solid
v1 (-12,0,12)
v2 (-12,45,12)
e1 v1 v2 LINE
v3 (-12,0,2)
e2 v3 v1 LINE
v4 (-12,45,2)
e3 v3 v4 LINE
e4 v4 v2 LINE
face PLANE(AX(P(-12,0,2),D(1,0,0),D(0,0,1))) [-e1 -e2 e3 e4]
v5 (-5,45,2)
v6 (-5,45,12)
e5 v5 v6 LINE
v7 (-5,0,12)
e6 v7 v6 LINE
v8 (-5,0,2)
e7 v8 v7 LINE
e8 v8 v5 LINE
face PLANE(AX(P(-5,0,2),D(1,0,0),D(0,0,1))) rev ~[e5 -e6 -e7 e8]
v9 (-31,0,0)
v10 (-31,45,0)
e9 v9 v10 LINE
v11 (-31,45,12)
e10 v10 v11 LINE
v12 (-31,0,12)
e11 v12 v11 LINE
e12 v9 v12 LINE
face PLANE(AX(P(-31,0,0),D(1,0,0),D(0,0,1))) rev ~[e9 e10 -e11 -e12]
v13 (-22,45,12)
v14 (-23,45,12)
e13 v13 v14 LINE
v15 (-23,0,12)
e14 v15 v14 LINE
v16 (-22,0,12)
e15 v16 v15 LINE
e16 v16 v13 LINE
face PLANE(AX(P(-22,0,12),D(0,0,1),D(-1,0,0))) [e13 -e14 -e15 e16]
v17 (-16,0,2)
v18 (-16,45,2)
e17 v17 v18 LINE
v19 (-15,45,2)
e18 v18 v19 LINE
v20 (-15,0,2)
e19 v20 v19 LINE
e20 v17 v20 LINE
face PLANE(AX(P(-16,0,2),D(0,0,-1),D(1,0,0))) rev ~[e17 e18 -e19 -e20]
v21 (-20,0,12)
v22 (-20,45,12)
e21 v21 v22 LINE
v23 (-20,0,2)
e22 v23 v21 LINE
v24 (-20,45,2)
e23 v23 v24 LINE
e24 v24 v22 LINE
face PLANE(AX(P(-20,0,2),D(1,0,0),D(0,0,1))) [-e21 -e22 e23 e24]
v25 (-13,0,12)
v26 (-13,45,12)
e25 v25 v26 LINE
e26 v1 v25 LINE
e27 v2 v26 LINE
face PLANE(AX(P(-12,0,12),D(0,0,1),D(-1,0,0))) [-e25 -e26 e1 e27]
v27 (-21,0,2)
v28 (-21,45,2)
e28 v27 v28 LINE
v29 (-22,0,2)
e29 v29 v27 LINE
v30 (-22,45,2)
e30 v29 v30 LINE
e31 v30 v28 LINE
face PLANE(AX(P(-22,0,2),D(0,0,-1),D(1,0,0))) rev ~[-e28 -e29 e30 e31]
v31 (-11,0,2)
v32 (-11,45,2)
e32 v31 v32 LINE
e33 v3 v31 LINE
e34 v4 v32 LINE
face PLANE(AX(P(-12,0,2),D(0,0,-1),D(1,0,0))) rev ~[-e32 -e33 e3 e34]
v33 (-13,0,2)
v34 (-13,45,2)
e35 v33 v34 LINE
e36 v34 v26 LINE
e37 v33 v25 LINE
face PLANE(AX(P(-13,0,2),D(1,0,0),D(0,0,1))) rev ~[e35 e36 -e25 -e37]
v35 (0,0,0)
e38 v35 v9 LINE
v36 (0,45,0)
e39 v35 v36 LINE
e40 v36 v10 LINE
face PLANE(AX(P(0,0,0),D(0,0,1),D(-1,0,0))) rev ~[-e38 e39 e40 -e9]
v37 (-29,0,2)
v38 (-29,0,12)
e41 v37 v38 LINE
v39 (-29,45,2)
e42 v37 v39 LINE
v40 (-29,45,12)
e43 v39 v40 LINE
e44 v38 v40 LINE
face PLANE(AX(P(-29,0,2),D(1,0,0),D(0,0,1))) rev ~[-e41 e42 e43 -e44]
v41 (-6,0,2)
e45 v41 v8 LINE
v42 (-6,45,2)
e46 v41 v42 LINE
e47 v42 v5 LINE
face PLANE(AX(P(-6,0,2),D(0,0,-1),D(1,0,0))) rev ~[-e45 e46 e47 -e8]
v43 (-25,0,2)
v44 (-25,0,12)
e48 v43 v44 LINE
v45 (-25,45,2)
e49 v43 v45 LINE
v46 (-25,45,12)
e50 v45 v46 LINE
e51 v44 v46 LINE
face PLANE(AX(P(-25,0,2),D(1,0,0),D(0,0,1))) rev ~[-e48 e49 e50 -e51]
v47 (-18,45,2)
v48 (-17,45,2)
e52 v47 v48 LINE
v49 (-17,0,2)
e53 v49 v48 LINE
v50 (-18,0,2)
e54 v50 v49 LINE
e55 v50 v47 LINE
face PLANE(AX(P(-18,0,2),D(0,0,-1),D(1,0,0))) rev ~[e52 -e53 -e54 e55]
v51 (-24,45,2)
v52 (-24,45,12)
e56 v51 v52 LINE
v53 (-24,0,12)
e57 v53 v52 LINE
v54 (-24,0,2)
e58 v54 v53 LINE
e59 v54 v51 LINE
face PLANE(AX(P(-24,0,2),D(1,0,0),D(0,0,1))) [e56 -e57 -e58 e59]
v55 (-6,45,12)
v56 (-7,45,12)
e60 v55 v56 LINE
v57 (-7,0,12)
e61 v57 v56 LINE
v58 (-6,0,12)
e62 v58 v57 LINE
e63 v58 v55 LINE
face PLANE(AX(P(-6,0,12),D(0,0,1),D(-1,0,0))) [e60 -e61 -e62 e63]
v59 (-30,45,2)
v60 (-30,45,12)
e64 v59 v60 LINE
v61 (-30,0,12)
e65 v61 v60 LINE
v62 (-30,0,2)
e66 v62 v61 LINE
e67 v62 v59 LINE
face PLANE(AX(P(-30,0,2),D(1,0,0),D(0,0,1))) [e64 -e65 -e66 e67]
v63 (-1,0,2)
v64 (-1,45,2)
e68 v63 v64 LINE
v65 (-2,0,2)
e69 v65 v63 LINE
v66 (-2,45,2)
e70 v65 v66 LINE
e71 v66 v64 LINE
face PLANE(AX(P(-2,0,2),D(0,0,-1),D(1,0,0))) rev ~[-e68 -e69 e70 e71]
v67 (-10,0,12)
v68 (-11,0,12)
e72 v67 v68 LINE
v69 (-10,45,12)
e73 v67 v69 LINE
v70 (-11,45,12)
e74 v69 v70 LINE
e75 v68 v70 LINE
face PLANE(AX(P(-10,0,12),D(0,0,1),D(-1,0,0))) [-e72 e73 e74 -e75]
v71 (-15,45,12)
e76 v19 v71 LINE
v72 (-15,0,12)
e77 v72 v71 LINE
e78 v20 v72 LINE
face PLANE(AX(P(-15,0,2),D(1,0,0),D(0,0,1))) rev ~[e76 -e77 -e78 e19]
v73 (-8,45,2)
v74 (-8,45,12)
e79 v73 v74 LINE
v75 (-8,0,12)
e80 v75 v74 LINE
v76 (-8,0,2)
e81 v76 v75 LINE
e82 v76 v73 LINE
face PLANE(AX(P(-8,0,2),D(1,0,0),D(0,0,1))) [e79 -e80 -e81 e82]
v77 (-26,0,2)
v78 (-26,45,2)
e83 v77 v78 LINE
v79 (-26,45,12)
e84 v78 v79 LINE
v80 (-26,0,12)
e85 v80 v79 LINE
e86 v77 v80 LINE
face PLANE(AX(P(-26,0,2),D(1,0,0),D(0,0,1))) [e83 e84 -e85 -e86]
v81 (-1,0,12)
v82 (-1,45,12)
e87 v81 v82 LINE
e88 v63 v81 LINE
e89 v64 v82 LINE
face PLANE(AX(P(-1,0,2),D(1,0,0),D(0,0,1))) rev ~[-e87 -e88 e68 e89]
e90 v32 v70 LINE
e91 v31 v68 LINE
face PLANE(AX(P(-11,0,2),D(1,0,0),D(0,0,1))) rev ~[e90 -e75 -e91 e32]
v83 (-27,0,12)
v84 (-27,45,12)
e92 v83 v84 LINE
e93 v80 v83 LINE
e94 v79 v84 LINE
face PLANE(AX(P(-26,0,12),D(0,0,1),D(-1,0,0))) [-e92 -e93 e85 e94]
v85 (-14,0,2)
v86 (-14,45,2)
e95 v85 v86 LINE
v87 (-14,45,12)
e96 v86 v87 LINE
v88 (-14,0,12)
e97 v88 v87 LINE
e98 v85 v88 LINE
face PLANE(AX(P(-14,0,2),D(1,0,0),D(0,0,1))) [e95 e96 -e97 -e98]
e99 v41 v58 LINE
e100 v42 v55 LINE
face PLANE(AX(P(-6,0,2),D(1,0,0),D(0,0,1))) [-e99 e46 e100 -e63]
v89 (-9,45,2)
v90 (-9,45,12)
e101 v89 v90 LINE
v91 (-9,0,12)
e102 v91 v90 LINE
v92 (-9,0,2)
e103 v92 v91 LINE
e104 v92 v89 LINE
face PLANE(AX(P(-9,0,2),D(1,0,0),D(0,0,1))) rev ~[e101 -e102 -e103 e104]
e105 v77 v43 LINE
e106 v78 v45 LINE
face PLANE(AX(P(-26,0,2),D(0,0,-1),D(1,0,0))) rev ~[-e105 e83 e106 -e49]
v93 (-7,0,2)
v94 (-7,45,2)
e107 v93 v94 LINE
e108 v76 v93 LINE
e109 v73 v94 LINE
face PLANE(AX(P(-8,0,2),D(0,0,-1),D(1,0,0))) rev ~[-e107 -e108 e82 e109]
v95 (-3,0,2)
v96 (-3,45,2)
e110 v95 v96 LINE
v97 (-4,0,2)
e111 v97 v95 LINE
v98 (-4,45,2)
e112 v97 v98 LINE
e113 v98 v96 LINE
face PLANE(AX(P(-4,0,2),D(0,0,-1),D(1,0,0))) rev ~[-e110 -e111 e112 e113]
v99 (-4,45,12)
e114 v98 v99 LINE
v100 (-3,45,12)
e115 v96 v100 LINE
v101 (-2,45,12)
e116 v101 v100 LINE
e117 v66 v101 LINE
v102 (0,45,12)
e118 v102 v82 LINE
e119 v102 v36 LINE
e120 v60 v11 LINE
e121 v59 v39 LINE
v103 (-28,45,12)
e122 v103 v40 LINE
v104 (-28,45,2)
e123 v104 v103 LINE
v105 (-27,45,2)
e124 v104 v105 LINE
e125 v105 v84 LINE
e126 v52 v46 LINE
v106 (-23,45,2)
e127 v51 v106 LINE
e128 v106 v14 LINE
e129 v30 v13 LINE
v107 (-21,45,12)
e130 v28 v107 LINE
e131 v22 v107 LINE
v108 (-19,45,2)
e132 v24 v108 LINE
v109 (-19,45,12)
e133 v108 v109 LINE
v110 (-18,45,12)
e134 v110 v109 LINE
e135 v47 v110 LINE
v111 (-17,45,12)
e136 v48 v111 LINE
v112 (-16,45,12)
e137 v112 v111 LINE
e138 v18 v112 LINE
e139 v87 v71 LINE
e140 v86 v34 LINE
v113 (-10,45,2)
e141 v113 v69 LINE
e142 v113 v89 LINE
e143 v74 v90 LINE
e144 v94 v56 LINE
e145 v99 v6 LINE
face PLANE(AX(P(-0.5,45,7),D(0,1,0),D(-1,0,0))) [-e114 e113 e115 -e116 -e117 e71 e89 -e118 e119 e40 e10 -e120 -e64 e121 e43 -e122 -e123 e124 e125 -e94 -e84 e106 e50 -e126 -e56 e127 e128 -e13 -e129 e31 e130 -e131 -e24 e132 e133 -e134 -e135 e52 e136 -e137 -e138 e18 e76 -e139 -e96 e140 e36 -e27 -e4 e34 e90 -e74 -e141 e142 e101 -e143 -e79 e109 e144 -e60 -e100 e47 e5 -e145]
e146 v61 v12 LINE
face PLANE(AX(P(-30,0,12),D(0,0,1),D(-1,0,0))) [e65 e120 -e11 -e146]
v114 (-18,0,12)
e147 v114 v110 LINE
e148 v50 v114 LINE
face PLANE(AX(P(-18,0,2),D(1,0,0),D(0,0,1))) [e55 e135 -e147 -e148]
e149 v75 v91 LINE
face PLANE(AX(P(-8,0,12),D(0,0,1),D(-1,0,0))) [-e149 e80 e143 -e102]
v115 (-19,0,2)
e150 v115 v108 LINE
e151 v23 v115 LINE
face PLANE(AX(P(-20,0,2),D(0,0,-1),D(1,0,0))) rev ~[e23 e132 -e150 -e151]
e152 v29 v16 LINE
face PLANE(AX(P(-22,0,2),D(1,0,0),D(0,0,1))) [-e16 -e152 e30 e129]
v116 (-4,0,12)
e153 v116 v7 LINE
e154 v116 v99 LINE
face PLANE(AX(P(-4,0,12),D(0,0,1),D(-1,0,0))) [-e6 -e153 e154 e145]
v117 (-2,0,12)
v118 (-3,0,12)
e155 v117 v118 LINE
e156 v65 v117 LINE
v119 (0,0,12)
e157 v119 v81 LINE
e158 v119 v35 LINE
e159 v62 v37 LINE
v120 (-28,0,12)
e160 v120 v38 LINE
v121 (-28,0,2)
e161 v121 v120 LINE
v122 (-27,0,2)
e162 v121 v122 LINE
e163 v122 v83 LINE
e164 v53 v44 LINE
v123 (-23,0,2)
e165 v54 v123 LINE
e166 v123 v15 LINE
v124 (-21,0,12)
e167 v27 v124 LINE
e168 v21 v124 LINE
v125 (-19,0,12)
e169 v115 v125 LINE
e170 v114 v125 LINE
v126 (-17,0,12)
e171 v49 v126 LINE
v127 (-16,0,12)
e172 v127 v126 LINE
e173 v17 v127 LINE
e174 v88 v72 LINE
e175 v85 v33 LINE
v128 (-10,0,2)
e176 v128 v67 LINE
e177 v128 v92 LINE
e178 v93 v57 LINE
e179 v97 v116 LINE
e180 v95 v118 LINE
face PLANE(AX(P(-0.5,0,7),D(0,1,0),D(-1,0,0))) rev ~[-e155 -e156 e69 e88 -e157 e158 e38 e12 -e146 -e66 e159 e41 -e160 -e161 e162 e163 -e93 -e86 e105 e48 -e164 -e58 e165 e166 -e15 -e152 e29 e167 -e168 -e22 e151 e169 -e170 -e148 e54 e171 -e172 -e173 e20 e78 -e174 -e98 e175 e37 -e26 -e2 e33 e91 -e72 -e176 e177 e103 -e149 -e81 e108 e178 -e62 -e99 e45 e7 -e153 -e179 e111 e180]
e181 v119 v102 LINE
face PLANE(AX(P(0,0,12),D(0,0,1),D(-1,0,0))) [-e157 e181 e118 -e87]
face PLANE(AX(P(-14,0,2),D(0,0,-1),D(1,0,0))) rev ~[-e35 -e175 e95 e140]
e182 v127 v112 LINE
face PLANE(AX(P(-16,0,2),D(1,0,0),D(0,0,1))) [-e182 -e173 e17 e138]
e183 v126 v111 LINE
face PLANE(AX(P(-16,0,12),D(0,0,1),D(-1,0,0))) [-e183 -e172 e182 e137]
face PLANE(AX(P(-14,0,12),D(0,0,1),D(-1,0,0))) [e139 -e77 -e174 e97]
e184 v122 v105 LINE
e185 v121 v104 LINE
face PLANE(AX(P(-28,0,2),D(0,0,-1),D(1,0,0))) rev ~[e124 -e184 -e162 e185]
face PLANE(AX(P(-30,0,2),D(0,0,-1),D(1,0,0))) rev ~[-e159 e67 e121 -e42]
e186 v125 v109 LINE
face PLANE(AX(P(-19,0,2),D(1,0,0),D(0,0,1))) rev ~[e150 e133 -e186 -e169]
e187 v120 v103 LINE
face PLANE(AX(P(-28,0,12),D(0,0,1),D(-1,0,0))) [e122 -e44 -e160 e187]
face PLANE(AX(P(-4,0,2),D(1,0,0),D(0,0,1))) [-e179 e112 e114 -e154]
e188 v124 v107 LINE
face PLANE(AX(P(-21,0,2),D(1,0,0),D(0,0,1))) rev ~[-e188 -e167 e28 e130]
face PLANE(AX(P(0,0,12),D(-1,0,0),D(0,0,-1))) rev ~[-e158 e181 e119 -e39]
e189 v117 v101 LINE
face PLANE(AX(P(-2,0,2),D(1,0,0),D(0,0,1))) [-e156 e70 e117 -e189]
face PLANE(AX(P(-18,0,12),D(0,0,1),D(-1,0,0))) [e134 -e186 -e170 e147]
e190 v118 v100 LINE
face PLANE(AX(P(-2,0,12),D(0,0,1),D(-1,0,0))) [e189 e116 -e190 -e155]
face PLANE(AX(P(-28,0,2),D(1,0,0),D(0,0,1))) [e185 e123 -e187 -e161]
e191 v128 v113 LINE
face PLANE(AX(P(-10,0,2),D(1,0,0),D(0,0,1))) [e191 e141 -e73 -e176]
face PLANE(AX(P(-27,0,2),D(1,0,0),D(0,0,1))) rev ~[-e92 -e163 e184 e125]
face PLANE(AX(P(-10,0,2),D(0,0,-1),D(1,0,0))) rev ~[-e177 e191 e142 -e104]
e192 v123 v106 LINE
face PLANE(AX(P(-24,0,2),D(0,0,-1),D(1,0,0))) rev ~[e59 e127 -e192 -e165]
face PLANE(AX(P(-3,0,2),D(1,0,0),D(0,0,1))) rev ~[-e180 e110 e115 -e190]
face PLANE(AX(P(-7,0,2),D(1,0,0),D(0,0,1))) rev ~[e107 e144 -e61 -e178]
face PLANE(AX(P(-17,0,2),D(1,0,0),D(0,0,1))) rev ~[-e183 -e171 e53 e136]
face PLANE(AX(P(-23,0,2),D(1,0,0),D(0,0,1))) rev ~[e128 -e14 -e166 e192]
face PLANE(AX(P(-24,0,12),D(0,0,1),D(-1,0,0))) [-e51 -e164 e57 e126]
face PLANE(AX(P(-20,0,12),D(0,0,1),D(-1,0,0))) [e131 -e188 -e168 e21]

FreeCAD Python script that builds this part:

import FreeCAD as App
import Part
import Sketcher

V = App.Vector


def add_polygon(sketch, points):
    """Adds a closed chain of lines whose ends are joined by coincident constraints."""
    first, n = sketch.GeometryCount, len(points)
    for a, b in zip(points, points[1:] + points[:1]):
        sketch.addGeometry(Part.LineSegment(App.Vector(*a, 0), App.Vector(*b, 0)), False)
    for i in range(n):
        sketch.addConstraint(Sketcher.Constraint("Coincident", first + i, 2, first + (i + 1) % n, 1))

doc = App.newDocument("Part")
body = doc.addObject("PartDesign::Body", "Body")

sketch1 = body.newObject("Sketcher::SketchObject", "Sketch")
sketch1.AttachmentSupport = (doc.getObject("XZ_Plane"), [""])
sketch1.MapMode = "FlatFace"
add_polygon(sketch1, [(0, 12), (0, 0), (-31, 0), (-31, 12), (-30, 12), (-30, 2), (-29, 2), (-29, 12), (-28, 12), (-28, 2), (-27, 2), (-27, 12), (-26, 12), (-26, 2), (-25, 2), (-25, 12), (-24, 12), (-24, 2), (-23, 2), (-23, 12), (-22, 12), (-22, 2), (-21, 2), (-21, 12), (-20, 12), (-20, 2), (-19, 2), (-19, 12), (-18, 12), (-18, 2), (-17, 2), (-17, 12), (-16, 12), (-16, 2), (-15, 2), (-15, 12), (-14, 12), (-14, 2), (-13, 2), (-13, 12), (-12, 12), (-12, 2), (-11, 2), (-11, 12), (-10, 12), (-10, 2), (-9, 2), (-9, 12), (-8, 12), (-8, 2), (-7, 2), (-7, 12), (-6, 12), (-6, 2), (-5, 2), (-5, 12), (-4, 12), (-4, 2), (-3, 2), (-3, 12), (-2, 12), (-2, 2), (-1, 2), (-1, 12)])
sketch1.addConstraint([
    Sketcher.Constraint("Vertical", 0),
    Sketcher.Constraint("Horizontal", 1),
    Sketcher.Constraint("Vertical", 2),
    Sketcher.Constraint("Horizontal", 3),
    Sketcher.Constraint("Vertical", 4),
    Sketcher.Constraint("Horizontal", 5),
    Sketcher.Constraint("Vertical", 6),
    Sketcher.Constraint("Horizontal", 7),
    Sketcher.Constraint("Vertical", 8),
    Sketcher.Constraint("Horizontal", 9),
    Sketcher.Constraint("Vertical", 10),
    Sketcher.Constraint("Horizontal", 11),
    Sketcher.Constraint("Vertical", 12),
    Sketcher.Constraint("Horizontal", 13),
    Sketcher.Constraint("Vertical", 14),
    Sketcher.Constraint("Horizontal", 15),
    Sketcher.Constraint("Vertical", 16),
    Sketcher.Constraint("Horizontal", 17),
    Sketcher.Constraint("Vertical", 18),
    Sketcher.Constraint("Horizontal", 19),
    Sketcher.Constraint("Vertical", 20),
    Sketcher.Constraint("Horizontal", 21),
    Sketcher.Constraint("Vertical", 22),
    Sketcher.Constraint("Horizontal", 23),
    Sketcher.Constraint("Vertical", 24),
    Sketcher.Constraint("Horizontal", 25),
    Sketcher.Constraint("Vertical", 26),
    Sketcher.Constraint("Horizontal", 27),
    Sketcher.Constraint("Vertical", 28),
    Sketcher.Constraint("Horizontal", 29),
    Sketcher.Constraint("Vertical", 30),
    Sketcher.Constraint("Horizontal", 31),
    Sketcher.Constraint("Vertical", 32),
    Sketcher.Constraint("Horizontal", 33),
    Sketcher.Constraint("Vertical", 34),
    Sketcher.Constraint("Horizontal", 35),
    Sketcher.Constraint("Vertical", 36),
    Sketcher.Constraint("Horizontal", 37),
    Sketcher.Constraint("Vertical", 38),
    Sketcher.Constraint("Horizontal", 39),
    Sketcher.Constraint("Vertical", 40),
    Sketcher.Constraint("Horizontal", 41),
    Sketcher.Constraint("Vertical", 42),
    Sketcher.Constraint("Horizontal", 43),
    Sketcher.Constraint("Vertical", 44),
    Sketcher.Constraint("Horizontal", 45),
    Sketcher.Constraint("Vertical", 46),
    Sketcher.Constraint("Horizontal", 47),
    Sketcher.Constraint("Vertical", 48),
    Sketcher.Constraint("Horizontal", 49),
    Sketcher.Constraint("Vertical", 50),
    Sketcher.Constraint("Horizontal", 51),
    Sketcher.Constraint("Vertical", 52),
    Sketcher.Constraint("Horizontal", 53),
    Sketcher.Constraint("Vertical", 54),
    Sketcher.Constraint("Horizontal", 55),
    Sketcher.Constraint("Vertical", 56),
    Sketcher.Constraint("Horizontal", 57),
    Sketcher.Constraint("Vertical", 58),
    Sketcher.Constraint("Horizontal", 59),
    Sketcher.Constraint("Vertical", 60),
    Sketcher.Constraint("Horizontal", 61),
    Sketcher.Constraint("Vertical", 62),
    Sketcher.Constraint("Horizontal", 63),
    Sketcher.Constraint("Coincident", 0, 2, -1, 1),
    Sketcher.Constraint("Horizontal", 3, 2, 6, 2),
    Sketcher.Constraint("Horizontal", 5, 2, 8, 2),
    Sketcher.Constraint("Horizontal", 7, 2, 10, 2),
    Sketcher.Constraint("Horizontal", 9, 2, 12, 2),
    Sketcher.Constraint("Horizontal", 11, 2, 14, 2),
    Sketcher.Constraint("Horizontal", 13, 2, 16, 2),
    Sketcher.Constraint("Horizontal", 15, 2, 18, 2),
    Sketcher.Constraint("Horizontal", 17, 2, 20, 2),
    Sketcher.Constraint("Horizontal", 19, 2, 22, 2),
    Sketcher.Constraint("Horizontal", 21, 2, 24, 2),
    Sketcher.Constraint("Horizontal", 23, 2, 26, 2),
    Sketcher.Constraint("Horizontal", 25, 2, 28, 2),
    Sketcher.Constraint("Horizontal", 27, 2, 30, 2),
    Sketcher.Constraint("Horizontal", 29, 2, 32, 2),
    Sketcher.Constraint("Horizontal", 31, 2, 34, 2),
    Sketcher.Constraint("Horizontal", 33, 2, 36, 2),
    Sketcher.Constraint("Horizontal", 35, 2, 38, 2),
    Sketcher.Constraint("Horizontal", 37, 2, 40, 2),
    Sketcher.Constraint("Horizontal", 39, 2, 42, 2),
    Sketcher.Constraint("Horizontal", 41, 2, 44, 2),
    Sketcher.Constraint("Horizontal", 43, 2, 46, 2),
    Sketcher.Constraint("Horizontal", 45, 2, 48, 2),
    Sketcher.Constraint("Horizontal", 47, 2, 50, 2),
    Sketcher.Constraint("Horizontal", 49, 2, 52, 2),
    Sketcher.Constraint("Horizontal", 51, 2, 54, 2),
    Sketcher.Constraint("Horizontal", 53, 2, 56, 2),
    Sketcher.Constraint("Horizontal", 55, 2, 58, 2),
    Sketcher.Constraint("Horizontal", 57, 2, 60, 2),
    Sketcher.Constraint("Horizontal", 59, 2, 62, 2),
    Sketcher.Constraint("Equal", 3, 5),
    Sketcher.Constraint("Equal", 5, 7),
    Sketcher.Constraint("Equal", 7, 9),
    Sketcher.Constraint("Equal", 9, 11),
    Sketcher.Constraint("Equal", 11, 13),
    Sketcher.Constraint("Equal", 13, 15),
    Sketcher.Constraint("Equal", 15, 17),
    Sketcher.Constraint("Equal", 17, 19),
    Sketcher.Constraint("Equal", 19, 21),
    Sketcher.Constraint("Equal", 21, 23),
    Sketcher.Constraint("Equal", 23, 25),
    Sketcher.Constraint("Equal", 25, 27),
    Sketcher.Constraint("Equal", 27, 29),
    Sketcher.Constraint("Equal", 29, 31),
    Sketcher.Constraint("Equal", 31, 33),
    Sketcher.Constraint("Equal", 33, 35),
    Sketcher.Constraint("Equal", 35, 37),
    Sketcher.Constraint("Equal", 37, 39),
    Sketcher.Constraint("Equal", 39, 41),
    Sketcher.Constraint("Equal", 41, 43),
    Sketcher.Constraint("Equal", 43, 45),
    Sketcher.Constraint("Equal", 45, 47),
    Sketcher.Constraint("Equal", 47, 49),
    Sketcher.Constraint("Equal", 49, 51),
    Sketcher.Constraint("Equal", 51, 53),
    Sketcher.Constraint("Equal", 53, 55),
    Sketcher.Constraint("Equal", 55, 57),
    Sketcher.Constraint("Equal", 57, 59),
    Sketcher.Constraint("Equal", 59, 61),
    Sketcher.Constraint("Equal", 61, 63),
    Sketcher.Constraint("DistanceX", 1, 2, 1, 1, 31.0),
    Sketcher.Constraint("DistanceY", 0, 2, 0, 1, 12.0),
    Sketcher.Constraint("DistanceY", 4, 2, 4, 1, 10.0),
])
pad1 = body.newObject("PartDesign::Pad", "Pad")
pad1.Profile = sketch1
pad1.Length = 45
pad1.Reversed = True

doc.recompute()
